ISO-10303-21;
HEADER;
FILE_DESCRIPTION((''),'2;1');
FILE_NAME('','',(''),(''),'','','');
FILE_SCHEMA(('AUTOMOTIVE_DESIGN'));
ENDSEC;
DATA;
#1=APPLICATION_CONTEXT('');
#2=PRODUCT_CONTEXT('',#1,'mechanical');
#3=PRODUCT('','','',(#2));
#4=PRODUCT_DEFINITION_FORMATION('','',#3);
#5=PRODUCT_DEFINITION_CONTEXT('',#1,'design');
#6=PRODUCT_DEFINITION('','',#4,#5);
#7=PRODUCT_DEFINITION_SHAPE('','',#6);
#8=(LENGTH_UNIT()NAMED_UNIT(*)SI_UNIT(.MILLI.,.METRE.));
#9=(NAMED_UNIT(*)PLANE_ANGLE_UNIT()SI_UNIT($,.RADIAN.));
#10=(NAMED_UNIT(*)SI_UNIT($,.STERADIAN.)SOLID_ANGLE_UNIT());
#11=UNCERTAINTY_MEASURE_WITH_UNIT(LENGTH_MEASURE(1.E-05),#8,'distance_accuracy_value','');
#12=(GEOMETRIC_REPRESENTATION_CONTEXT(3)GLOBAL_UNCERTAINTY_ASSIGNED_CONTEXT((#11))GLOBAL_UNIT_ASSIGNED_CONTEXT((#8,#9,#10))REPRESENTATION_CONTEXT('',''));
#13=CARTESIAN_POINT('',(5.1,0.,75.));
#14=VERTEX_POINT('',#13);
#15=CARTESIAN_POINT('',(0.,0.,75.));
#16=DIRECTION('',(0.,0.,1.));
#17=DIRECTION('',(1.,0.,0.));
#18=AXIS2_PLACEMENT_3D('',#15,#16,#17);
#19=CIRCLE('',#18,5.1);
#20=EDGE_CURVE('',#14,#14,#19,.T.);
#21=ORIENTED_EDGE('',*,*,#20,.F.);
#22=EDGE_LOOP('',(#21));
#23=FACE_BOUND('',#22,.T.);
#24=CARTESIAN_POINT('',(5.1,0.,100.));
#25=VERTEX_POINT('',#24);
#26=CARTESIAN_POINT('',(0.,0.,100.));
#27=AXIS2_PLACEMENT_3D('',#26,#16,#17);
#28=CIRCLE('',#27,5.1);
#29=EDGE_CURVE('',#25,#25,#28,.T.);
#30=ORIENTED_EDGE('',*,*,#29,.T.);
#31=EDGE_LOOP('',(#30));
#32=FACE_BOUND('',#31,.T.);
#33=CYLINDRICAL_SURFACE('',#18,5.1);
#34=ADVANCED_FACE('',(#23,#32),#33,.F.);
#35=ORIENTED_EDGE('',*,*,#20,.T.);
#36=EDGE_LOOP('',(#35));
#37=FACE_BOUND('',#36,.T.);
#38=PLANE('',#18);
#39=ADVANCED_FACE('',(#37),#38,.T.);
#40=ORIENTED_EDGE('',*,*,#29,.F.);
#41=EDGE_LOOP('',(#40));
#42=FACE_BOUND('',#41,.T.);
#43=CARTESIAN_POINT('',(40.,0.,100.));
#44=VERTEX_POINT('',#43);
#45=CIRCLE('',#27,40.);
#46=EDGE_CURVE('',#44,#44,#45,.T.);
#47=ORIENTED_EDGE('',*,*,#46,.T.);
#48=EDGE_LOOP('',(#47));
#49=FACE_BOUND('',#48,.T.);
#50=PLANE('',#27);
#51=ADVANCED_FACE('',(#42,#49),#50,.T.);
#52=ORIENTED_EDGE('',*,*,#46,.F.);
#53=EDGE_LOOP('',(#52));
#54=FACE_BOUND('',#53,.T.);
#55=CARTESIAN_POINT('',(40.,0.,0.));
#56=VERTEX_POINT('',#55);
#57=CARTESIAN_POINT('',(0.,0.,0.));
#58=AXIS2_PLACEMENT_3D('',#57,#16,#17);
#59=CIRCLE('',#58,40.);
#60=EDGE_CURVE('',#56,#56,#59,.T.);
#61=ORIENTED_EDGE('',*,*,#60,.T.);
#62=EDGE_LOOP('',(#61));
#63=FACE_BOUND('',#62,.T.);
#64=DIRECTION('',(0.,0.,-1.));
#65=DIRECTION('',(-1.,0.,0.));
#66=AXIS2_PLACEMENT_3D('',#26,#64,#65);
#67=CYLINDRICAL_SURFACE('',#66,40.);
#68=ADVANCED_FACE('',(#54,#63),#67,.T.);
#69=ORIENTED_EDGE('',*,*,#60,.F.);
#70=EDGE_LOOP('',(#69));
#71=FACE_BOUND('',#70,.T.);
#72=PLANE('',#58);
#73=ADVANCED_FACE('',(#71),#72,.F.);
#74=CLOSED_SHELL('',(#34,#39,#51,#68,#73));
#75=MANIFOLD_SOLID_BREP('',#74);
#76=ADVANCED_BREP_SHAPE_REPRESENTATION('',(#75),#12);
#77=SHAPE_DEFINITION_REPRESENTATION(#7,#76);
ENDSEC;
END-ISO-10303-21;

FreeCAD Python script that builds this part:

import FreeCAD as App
import Part
import Sketcher
from FreeCAD import Vector
Q = App.Units.Quantity

doc = App.newDocument("Part")
params = doc.addObject("Spreadsheet::Sheet", "Params")
for row, (alias, value) in enumerate([
    ("sketch1_diameter", "80 mm"),
    ("pad1_length", "100 mm"),
    ("sketch2_diameter", "10.2 mm"),
    ("pocket1_length", "25 mm"),
], start=1):
    params.set(f"A{row}", alias)
    params.set(f"B{row}", "=" + value)
    params.setAlias(f"B{row}", alias)

body = doc.addObject("PartDesign::Body", "Body")

sketch1 = body.newObject("Sketcher::SketchObject", "Sketch")
sketch1.AttachmentSupport = (doc.getObject("XY_Plane"), [""])
sketch1.MapMode = "FlatFace"
sketch1.addGeometry(Part.Circle(Vector(0, 0, 0), Vector(0, 0, 1), 40), False)
sketch1.addConstraint(Sketcher.Constraint("Coincident", 0, 3, -1, 1))
sketch1.addConstraint(Sketcher.Constraint("Diameter", 0, Q("80 mm")))
sketch1.setExpression("Constraints[1]", "Params.sketch1_diameter")
pad1 = body.newObject("PartDesign::Pad", "Pad")
pad1.Profile = sketch1
pad1.setExpression("Length", "Params.pad1_length")

sketch2 = body.newObject("Sketcher::SketchObject", "Sketch001")
sketch2.AttachmentSupport = (doc.getObject("XY_Plane"), [""])
sketch2.MapMode = "FlatFace"
sketch2.AttachmentOffset = App.Placement(Vector(0, 0, 100), App.Rotation())
sketch2.addGeometry(Part.Circle(Vector(0, 0, 0), Vector(0, 0, 1), 5.1), False)
sketch2.addConstraint(Sketcher.Constraint("Coincident", 0, 3, -1, 1))
sketch2.addConstraint(Sketcher.Constraint("Diameter", 0, Q("10.2 mm")))
sketch2.setExpression("Constraints[1]", "Params.sketch2_diameter")
pocket1 = body.newObject("PartDesign::Pocket", "Pocket")
pocket1.Profile = sketch2
pocket1.setExpression("Length", "Params.pocket1_length")

doc.recompute()
